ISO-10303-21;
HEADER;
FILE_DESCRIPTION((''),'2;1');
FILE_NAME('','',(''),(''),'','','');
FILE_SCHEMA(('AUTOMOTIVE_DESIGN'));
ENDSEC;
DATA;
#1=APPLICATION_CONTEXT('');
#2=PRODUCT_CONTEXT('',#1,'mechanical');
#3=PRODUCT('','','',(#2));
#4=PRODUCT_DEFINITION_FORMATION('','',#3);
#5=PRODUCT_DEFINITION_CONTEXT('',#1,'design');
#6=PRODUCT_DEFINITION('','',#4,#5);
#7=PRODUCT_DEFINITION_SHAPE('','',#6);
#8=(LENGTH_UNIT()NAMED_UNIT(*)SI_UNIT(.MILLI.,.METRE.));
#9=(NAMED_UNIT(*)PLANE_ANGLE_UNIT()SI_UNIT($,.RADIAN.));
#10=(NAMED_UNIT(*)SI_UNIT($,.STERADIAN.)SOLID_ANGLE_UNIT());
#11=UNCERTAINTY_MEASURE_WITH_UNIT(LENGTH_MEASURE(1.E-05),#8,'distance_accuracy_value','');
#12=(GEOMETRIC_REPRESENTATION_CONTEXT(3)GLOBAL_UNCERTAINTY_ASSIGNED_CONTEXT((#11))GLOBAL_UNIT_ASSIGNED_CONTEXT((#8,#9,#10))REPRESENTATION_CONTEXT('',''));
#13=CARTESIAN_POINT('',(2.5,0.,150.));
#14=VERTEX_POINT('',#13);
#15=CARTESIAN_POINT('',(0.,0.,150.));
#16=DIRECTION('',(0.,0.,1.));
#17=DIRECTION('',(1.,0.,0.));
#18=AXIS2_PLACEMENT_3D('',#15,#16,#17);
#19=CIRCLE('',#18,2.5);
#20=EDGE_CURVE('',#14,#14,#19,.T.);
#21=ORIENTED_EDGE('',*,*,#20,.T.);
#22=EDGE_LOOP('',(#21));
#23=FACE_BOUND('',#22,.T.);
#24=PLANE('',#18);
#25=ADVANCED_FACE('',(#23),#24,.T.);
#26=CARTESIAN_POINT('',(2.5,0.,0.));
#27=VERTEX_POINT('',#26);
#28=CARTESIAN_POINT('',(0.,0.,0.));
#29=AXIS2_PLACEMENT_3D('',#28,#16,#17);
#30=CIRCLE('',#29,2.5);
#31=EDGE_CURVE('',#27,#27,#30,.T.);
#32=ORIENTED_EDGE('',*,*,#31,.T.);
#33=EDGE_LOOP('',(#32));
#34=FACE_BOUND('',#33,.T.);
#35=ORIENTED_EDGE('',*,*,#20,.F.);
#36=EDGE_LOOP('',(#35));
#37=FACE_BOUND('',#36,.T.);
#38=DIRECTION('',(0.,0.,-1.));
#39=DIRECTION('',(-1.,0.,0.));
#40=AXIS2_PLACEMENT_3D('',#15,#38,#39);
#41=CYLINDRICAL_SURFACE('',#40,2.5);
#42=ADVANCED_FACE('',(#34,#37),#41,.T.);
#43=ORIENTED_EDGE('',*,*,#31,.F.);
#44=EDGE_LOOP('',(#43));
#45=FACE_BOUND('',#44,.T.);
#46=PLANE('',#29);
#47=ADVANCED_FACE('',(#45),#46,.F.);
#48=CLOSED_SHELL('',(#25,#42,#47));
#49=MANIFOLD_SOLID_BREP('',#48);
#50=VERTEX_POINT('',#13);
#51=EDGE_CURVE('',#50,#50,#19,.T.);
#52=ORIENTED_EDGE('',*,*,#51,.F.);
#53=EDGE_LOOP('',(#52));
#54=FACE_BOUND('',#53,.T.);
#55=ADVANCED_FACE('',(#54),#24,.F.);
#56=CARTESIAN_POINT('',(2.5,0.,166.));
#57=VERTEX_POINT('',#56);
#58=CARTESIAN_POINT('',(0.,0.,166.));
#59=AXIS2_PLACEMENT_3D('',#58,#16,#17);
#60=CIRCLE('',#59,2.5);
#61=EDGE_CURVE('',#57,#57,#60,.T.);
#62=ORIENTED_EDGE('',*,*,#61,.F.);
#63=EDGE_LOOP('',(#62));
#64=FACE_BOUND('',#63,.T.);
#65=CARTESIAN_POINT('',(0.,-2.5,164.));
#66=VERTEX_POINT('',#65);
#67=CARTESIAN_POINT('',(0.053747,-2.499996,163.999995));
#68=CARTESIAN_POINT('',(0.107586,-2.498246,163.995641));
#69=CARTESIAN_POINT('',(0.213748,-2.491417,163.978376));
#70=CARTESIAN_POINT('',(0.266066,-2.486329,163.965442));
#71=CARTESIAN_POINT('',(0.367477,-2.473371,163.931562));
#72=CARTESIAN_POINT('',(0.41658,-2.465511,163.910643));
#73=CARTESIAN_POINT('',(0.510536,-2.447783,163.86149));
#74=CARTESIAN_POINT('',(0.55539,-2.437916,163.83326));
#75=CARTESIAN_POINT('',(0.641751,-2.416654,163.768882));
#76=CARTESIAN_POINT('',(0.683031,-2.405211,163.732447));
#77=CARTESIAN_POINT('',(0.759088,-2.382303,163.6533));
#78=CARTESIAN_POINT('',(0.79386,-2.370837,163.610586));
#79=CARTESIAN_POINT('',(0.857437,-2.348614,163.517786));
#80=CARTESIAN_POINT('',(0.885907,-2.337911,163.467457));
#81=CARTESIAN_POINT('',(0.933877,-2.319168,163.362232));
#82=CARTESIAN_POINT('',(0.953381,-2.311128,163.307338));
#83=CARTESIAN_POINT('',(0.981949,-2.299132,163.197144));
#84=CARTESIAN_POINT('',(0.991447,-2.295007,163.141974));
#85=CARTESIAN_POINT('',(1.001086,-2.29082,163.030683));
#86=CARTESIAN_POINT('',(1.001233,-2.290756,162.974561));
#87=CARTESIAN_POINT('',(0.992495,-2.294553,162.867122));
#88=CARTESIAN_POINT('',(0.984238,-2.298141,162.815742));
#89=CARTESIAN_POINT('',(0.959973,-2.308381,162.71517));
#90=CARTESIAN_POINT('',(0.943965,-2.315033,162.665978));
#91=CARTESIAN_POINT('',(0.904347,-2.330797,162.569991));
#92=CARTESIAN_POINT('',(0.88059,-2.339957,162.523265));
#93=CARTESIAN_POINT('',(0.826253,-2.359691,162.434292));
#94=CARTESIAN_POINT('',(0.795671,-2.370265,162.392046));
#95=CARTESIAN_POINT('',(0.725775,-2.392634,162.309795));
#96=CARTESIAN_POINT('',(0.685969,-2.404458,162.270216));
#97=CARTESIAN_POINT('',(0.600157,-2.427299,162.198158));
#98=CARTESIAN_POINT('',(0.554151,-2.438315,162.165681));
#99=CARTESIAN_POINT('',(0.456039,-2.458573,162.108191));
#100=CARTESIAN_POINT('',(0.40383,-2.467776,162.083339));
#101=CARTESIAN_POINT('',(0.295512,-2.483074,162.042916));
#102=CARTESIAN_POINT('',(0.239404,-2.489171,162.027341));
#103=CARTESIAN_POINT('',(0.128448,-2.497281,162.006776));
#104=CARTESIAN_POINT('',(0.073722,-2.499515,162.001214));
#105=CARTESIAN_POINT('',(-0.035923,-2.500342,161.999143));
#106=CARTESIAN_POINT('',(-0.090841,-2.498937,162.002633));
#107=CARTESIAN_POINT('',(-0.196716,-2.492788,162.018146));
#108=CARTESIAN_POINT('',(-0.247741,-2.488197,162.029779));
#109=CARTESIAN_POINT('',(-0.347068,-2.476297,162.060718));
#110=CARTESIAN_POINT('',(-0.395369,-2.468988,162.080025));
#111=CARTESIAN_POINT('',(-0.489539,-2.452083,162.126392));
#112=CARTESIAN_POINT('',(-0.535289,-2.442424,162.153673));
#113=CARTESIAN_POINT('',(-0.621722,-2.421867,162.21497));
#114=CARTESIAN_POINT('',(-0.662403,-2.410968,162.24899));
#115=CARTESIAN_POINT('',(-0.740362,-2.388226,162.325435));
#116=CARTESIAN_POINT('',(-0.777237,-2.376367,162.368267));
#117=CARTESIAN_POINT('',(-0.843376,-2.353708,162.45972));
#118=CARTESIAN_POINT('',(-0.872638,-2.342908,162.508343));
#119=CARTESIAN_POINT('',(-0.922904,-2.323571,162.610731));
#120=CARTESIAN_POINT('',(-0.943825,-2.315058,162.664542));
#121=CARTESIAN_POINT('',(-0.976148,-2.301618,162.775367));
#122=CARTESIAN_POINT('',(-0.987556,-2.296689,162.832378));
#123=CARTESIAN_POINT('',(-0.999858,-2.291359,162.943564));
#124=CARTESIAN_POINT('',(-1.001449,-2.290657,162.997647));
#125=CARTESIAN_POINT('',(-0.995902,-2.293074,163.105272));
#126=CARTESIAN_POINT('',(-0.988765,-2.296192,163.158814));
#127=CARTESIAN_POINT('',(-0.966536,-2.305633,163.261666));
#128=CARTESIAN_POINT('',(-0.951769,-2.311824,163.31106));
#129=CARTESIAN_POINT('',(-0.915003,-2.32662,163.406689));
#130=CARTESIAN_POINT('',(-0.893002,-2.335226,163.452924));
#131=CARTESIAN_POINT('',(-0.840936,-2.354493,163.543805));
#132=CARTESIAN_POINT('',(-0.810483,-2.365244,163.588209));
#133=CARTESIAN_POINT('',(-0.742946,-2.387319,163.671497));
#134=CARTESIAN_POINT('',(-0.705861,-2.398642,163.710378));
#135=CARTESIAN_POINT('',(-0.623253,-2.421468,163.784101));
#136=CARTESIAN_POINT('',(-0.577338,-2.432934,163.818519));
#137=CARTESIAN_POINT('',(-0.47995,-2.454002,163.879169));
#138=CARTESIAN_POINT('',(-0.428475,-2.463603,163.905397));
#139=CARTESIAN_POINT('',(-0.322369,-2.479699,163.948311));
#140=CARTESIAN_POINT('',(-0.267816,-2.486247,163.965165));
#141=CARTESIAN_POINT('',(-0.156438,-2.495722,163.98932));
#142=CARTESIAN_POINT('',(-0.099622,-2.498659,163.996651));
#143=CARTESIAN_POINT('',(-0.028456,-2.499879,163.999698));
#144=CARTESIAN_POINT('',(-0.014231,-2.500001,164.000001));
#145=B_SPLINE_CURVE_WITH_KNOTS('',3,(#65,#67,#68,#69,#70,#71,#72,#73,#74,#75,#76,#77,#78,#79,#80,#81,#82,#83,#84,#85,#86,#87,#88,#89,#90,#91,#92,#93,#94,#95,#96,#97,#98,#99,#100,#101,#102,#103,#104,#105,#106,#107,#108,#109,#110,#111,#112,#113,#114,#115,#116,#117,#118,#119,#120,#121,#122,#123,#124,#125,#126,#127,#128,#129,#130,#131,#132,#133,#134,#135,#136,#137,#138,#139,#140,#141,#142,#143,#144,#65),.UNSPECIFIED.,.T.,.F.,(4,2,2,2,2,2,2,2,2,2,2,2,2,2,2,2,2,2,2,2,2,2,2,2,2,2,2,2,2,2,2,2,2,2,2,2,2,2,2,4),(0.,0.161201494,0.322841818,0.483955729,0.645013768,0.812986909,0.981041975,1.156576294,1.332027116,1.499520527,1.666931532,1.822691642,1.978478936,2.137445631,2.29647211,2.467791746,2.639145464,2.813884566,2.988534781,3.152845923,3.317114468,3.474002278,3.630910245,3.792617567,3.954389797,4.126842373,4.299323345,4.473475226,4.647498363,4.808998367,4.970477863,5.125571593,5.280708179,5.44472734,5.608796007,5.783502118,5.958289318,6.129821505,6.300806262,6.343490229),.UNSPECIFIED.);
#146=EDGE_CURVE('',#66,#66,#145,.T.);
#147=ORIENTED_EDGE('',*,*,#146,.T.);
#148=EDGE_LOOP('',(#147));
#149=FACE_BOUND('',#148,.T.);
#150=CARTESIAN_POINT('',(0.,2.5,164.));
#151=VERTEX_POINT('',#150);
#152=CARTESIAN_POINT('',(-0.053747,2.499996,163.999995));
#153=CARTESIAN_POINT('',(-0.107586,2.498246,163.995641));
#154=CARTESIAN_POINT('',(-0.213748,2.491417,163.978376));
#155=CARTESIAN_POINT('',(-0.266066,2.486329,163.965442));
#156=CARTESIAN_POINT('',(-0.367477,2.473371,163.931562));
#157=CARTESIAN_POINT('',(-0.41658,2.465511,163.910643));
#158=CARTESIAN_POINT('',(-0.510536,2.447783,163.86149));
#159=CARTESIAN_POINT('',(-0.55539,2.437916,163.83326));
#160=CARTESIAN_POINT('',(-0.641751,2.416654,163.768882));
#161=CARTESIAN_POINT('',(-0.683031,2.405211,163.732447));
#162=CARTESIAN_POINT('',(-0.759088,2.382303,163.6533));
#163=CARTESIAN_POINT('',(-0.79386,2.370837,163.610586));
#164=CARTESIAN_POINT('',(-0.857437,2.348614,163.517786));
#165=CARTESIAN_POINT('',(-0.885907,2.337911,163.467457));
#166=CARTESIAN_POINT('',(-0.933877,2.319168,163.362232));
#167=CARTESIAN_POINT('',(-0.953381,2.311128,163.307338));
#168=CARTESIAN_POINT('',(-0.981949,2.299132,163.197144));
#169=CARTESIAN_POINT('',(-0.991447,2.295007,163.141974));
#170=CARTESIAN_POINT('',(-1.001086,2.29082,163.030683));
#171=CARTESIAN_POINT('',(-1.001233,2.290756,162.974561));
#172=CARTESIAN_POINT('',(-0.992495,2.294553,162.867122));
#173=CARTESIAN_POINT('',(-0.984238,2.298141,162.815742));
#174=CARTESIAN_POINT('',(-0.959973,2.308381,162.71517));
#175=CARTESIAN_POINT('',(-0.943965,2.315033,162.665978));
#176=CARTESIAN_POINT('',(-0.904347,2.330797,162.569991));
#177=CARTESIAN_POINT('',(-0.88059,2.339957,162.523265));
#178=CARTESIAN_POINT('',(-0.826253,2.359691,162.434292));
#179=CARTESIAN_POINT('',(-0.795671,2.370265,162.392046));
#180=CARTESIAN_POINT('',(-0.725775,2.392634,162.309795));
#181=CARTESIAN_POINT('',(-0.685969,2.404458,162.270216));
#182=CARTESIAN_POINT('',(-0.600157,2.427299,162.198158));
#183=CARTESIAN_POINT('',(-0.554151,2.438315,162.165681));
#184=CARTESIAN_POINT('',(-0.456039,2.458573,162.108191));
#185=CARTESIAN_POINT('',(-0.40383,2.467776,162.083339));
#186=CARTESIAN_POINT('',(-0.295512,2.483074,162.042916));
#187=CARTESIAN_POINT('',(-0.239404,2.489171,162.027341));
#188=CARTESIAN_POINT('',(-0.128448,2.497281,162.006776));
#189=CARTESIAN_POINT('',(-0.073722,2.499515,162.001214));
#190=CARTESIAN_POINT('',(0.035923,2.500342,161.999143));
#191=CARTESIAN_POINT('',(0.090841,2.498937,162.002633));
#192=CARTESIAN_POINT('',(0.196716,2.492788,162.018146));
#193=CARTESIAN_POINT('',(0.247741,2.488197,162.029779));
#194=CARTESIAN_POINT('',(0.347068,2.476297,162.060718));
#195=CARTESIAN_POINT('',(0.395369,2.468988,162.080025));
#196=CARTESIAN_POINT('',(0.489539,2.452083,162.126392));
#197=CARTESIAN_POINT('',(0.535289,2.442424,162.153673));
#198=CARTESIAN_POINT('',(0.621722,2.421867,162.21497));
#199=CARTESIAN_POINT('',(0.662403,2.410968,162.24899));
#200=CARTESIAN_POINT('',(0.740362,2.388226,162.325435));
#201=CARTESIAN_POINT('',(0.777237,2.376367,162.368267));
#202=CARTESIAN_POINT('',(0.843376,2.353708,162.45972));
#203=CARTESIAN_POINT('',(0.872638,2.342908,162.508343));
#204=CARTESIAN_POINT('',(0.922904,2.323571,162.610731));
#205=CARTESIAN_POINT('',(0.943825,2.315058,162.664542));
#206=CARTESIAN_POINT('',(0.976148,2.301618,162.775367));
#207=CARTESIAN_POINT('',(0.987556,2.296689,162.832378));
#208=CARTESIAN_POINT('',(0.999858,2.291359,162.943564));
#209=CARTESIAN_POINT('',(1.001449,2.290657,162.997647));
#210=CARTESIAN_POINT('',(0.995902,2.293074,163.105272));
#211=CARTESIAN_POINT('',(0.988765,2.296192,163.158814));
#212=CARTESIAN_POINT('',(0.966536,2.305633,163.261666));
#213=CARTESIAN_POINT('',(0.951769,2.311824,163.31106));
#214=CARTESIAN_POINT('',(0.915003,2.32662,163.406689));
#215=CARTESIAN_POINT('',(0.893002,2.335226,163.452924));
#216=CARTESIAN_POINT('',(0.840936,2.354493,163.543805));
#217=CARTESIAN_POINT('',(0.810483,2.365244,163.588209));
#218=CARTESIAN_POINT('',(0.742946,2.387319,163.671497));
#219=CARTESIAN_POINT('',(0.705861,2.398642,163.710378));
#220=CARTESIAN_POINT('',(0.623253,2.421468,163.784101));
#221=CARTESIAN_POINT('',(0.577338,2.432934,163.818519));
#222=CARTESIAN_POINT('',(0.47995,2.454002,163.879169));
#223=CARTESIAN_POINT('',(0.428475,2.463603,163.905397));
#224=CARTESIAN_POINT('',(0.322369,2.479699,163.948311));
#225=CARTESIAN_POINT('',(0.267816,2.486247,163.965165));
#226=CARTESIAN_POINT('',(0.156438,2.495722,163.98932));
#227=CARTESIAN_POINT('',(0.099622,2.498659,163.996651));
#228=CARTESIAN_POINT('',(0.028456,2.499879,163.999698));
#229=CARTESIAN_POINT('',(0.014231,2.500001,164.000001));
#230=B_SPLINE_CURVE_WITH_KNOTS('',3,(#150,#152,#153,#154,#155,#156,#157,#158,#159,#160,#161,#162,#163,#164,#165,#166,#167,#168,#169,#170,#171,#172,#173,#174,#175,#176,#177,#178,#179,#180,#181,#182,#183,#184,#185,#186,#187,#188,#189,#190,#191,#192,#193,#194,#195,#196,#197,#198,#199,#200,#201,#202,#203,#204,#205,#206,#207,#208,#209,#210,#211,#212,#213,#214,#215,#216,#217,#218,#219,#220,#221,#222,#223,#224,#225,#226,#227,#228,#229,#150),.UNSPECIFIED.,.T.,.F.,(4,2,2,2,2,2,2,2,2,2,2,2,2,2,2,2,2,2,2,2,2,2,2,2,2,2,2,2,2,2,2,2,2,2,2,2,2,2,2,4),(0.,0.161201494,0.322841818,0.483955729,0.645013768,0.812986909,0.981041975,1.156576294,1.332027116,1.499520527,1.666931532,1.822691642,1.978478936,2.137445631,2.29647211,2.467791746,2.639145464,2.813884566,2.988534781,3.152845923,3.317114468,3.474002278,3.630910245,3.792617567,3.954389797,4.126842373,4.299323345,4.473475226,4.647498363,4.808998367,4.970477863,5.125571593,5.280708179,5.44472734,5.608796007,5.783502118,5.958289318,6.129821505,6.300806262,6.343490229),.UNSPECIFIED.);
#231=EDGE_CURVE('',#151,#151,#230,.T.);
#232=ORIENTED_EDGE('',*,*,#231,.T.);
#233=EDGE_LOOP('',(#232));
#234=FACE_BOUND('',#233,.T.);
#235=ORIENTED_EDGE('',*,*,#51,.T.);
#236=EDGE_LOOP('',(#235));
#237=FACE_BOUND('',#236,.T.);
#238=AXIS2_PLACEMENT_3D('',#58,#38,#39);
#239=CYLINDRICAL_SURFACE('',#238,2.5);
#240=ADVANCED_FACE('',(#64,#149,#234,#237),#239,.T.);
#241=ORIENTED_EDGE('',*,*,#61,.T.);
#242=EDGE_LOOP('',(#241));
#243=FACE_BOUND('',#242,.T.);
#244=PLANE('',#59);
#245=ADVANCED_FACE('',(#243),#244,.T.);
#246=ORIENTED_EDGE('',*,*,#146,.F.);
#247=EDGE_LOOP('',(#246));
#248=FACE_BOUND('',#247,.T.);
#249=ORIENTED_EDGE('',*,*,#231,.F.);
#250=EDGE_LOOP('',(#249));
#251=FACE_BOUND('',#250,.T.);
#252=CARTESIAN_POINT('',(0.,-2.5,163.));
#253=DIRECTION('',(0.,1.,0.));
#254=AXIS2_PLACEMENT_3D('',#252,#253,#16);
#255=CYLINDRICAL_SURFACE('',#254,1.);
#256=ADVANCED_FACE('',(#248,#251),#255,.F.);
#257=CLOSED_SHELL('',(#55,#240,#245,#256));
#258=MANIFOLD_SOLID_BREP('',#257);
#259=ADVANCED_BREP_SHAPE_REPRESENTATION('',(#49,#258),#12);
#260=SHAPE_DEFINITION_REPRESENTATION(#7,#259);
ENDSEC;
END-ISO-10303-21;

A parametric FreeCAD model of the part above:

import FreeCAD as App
import Part
import Sketcher
from FreeCAD import Vector
Q = App.Units.Quantity

doc = App.newDocument("Part")
body = doc.addObject("PartDesign::Body", "Body")

# Sketch on XY plane
sketch1 = body.newObject("Sketcher::SketchObject", "Sketch")
sketch1.AttachmentSupport = (doc.getObject("XY_Plane"), [""])
sketch1.MapMode = "FlatFace"
sketch1.addGeometry(Part.Circle(Vector(0, 0, 0), Vector(0, 0, 1), 2.5), False)
sketch1.addConstraint([
    Sketcher.Constraint("Coincident", 0, 3, -1, 1),
    Sketcher.Constraint("Diameter", 0, Q("5 mm")),
])
pad1 = body.newObject("PartDesign::Pad", "Pad")
pad1.Profile = sketch1
pad1.Length = 150
body2 = doc.addObject("PartDesign::Body", "Body001")

# Sketch on XY plane
sketch2 = body2.newObject("Sketcher::SketchObject", "Sketch001")
sketch2.AttachmentSupport = (doc.getObject("XY_Plane001"), [""])
sketch2.MapMode = "FlatFace"
sketch2.AttachmentOffset = App.Placement(Vector(0, 0, 150), App.Rotation())
sketch2.addGeometry(Part.Circle(Vector(0, 0, 0), Vector(0, 0, 1), 2.5), False)
sketch2.addConstraint([
    Sketcher.Constraint("Coincident", 0, 3, -1, 1),
    Sketcher.Constraint("Diameter", 0, Q("5 mm")),
])
pad2 = body2.newObject("PartDesign::Pad", "Pad001")
pad2.Profile = sketch2
pad2.Length = 16

# Sketch on XZ plane
sketch3 = body2.newObject("Sketcher::SketchObject", "Sketch002")
sketch3.AttachmentSupport = (doc.getObject("XZ_Plane001"), [""])
sketch3.MapMode = "FlatFace"
sketch3.addGeometry(Part.Circle(Vector(0, 163, 0), Vector(0, 0, 1), 1), False)
sketch3.addConstraint([
    Sketcher.Constraint("PointOnObject", 0, 3, -2),
    Sketcher.Constraint("Diameter", 0, Q("2 mm")),
    Sketcher.Constraint("DistanceY", -1, 1, 0, 3, Q("163 mm")),
])
pocket1 = body2.newObject("PartDesign::Pocket", "Pocket")
pocket1.Profile = sketch3
pocket1.Type = "ThroughAll"
pocket1.Midplane = True

doc.recompute()
